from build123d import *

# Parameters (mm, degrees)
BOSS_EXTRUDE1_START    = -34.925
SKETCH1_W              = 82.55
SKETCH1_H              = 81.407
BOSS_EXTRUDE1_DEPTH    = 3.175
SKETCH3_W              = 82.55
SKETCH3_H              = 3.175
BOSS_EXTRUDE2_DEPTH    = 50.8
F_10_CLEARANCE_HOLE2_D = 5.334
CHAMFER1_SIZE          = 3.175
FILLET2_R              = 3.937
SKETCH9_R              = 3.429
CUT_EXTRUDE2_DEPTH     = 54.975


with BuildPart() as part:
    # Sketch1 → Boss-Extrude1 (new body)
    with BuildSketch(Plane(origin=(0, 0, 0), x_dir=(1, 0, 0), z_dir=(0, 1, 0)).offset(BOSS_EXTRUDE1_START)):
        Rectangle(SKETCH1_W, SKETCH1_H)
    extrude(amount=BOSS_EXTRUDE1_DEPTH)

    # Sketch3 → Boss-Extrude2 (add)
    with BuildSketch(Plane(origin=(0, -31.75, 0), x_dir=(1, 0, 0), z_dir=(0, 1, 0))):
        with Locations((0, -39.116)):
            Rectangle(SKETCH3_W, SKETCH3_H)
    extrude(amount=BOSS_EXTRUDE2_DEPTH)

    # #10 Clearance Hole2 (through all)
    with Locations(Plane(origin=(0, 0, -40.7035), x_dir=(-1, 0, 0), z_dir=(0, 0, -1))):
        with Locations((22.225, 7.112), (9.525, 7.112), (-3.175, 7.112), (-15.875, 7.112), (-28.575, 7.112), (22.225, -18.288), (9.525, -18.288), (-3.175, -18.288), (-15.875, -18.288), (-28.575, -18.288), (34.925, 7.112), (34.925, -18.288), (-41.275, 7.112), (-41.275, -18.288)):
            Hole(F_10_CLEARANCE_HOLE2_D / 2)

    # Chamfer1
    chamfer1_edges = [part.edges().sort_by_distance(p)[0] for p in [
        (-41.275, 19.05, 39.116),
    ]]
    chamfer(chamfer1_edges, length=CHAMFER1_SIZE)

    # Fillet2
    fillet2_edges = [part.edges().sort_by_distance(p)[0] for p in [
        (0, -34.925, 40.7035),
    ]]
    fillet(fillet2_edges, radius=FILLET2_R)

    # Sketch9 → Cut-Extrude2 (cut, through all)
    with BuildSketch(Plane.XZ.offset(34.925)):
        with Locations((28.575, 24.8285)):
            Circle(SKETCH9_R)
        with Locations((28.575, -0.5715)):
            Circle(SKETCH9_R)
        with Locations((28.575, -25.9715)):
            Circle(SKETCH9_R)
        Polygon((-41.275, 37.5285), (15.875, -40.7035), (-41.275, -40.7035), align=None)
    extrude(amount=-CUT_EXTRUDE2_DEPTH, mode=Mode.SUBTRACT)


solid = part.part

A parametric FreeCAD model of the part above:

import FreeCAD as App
import Part
import Sketcher
Q = App.Units.Quantity


def edges_at(feature, points):
    """Names of the edges that pass closest to the given points."""
    edges = feature.Shape.Edges
    near = lambda p: min(range(len(edges)), key=lambda i: edges[i].distToShape(Part.Vertex(*p))[0])
    return sorted({f"Edge{near(p) + 1}" for p in points})


def add_polygon(sketch, points):
    """Adds a closed chain of lines whose ends are joined by coincident constraints."""
    first, n = sketch.GeometryCount, len(points)
    for a, b in zip(points, points[1:] + points[:1]):
        sketch.addGeometry(Part.LineSegment(App.Vector(*a, 0), App.Vector(*b, 0)), False)
    for i in range(n):
        sketch.addConstraint(Sketcher.Constraint("Coincident", first + i, 2, first + (i + 1) % n, 1))

doc = App.newDocument("Part")
params = doc.addObject("Spreadsheet::Sheet", "Params")
for row, (alias, value) in enumerate([
    ("sketch1_width", "3.25 in"),
    ("sketch1_height", "3.205 in"),
    ("pad1_length", "0.125 in"),
    ("sketch2_width", "3.25 in"),
    ("sketch2_height", "0.125 in"),
    ("pad2_length", "2 in"),
    ("sketch3_diameter", "0.21 in"),
    ("hole_diameter", "0.21 in"),
    ("chamfer_size", "0.125 in"),
    ("fillet_radius", "0.155 in"),
    ("sketch4_diameter", "0.27 in"),
    ("sketch4_width", "2.25 in"),
    ("sketch4_height", "3.08 in"),
], start=1):
    params.set(f"A{row}", alias)
    params.set(f"B{row}", "=" + value)
    params.setAlias(f"B{row}", alias)

body = doc.addObject("PartDesign::Body", "Body")

sketch1 = doc.addObject("Sketcher::SketchObject", "Sketch")
body.addObject(sketch1)
sketch1.AttachmentSupport = (doc.XZ_Plane, [""])
sketch1.MapMode = "FlatFace"
sketch1.AttachmentOffset = App.Placement(App.Vector(0, 0, 1.375 * 25.4), App.Rotation())
add_polygon(sketch1, [(-41, -41), (-41, 41), (41, 41), (41, -41)])
sketch1.addConstraint(Sketcher.Constraint("Vertical", 0))
sketch1.addConstraint(Sketcher.Constraint("Horizontal", 1))
sketch1.addConstraint(Sketcher.Constraint("Vertical", 2))
sketch1.addConstraint(Sketcher.Constraint("Horizontal", 3))
sketch1.addConstraint(Sketcher.Constraint("Symmetric", 0, 2, 2, 2, -1, 1))
sketch1.addConstraint(Sketcher.Constraint("DistanceX", 1, 1, 1, 2, Q("3.25 in")))
sketch1.addConstraint(Sketcher.Constraint("DistanceY", 0, 1, 0, 2, Q("3.205 in")))
sketch1.setExpression("Constraints[9]", "Params.sketch1_width")
sketch1.setExpression("Constraints[10]", "Params.sketch1_height")
pad1 = doc.addObject("PartDesign::Pad", "Pad")
body.addObject(pad1)
pad1.Profile = sketch1
pad1.setExpression("Length", "Params.pad1_length")
pad1.Reversed = True

sketch2 = doc.addObject("Sketcher::SketchObject", "Sketch001")
body.addObject(sketch2)
sketch2.AttachmentSupport = (doc.XZ_Plane, [""])
sketch2.MapMode = "FlatFace"
sketch2.AttachmentOffset = App.Placement(App.Vector(0, 0, 1.25 * 25.4), App.Rotation())
add_polygon(sketch2, [(-41.3, 37.5), (-41.3, 40.7), (41.3, 40.7), (41.3, 37.5)])
sketch2.addConstraint(Sketcher.Constraint("Vertical", 0))
sketch2.addConstraint(Sketcher.Constraint("Horizontal", 1))
sketch2.addConstraint(Sketcher.Constraint("Vertical", 2))
sketch2.addConstraint(Sketcher.Constraint("Horizontal", 3))
sketch2.addConstraint(Sketcher.Constraint("DistanceX", 1, 1, 1, 2, Q("3.25 in")))
sketch2.addConstraint(Sketcher.Constraint("DistanceY", 0, 1, 0, 2, Q("0.125 in")))
sketch2.addConstraint(Sketcher.Constraint("DistanceX", 0, 2, -1, 1, Q("1.625 in")))
sketch2.addConstraint(Sketcher.Constraint("DistanceY", -1, 1, 0, 2, Q("1.6025 in")))
sketch2.setExpression("Constraints[8]", "Params.sketch2_width")
sketch2.setExpression("Constraints[9]", "Params.sketch2_height")
pad2 = doc.addObject("PartDesign::Pad", "Pad001")
body.addObject(pad2)
pad2.Profile = sketch2
pad2.setExpression("Length", "Params.pad2_length")
pad2.Reversed = True

sketch3 = doc.addObject("Sketcher::SketchObject", "Sketch002")
body.addObject(sketch3)
sketch3.AttachmentSupport = (doc.XY_Plane, [""])
sketch3.MapMode = "FlatFace"
sketch3.AttachmentOffset = App.Placement(App.Vector(0, 0, -1.6025 * 25.4), App.Rotation())
sketch3.addGeometry(Part.Circle(App.Vector(-22.2, 7.1, 0), App.Vector(0, 0, 1), 2.7), False)
sketch3.addGeometry(Part.Circle(App.Vector(-9.5, 7.1, 0), App.Vector(0, 0, 1), 2.7), False)
sketch3.addGeometry(Part.Circle(App.Vector(3.2, 7.1, 0), App.Vector(0, 0, 1), 2.7), False)
sketch3.addGeometry(Part.Circle(App.Vector(15.9, 7.1, 0), App.Vector(0, 0, 1), 2.7), False)
sketch3.addGeometry(Part.Circle(App.Vector(28.6, 7.1, 0), App.Vector(0, 0, 1), 2.7), False)
sketch3.addGeometry(Part.Circle(App.Vector(-22.2, -18.3, 0), App.Vector(0, 0, 1), 2.7), False)
sketch3.addGeometry(Part.Circle(App.Vector(-9.5, -18.3, 0), App.Vector(0, 0, 1), 2.7), False)
sketch3.addGeometry(Part.Circle(App.Vector(3.2, -18.3, 0), App.Vector(0, 0, 1), 2.7), False)
sketch3.addGeometry(Part.Circle(App.Vector(15.9, -18.3, 0), App.Vector(0, 0, 1), 2.7), False)
sketch3.addGeometry(Part.Circle(App.Vector(28.6, -18.3, 0), App.Vector(0, 0, 1), 2.7), False)
sketch3.addGeometry(Part.Circle(App.Vector(-34.9, 7.1, 0), App.Vector(0, 0, 1), 2.7), False)
sketch3.addGeometry(Part.Circle(App.Vector(-34.9, -18.3, 0), App.Vector(0, 0, 1), 2.7), False)
sketch3.addGeometry(Part.Circle(App.Vector(41.3, 7.1, 0), App.Vector(0, 0, 1), 2.7), False)
sketch3.addGeometry(Part.Circle(App.Vector(41.3, -18.3, 0), App.Vector(0, 0, 1), 2.7), False)
sketch3.addConstraint(Sketcher.Constraint("Equal", 0, 1))
sketch3.addConstraint(Sketcher.Constraint("Equal", 1, 2))
sketch3.addConstraint(Sketcher.Constraint("Equal", 2, 3))
sketch3.addConstraint(Sketcher.Constraint("Equal", 3, 4))
sketch3.addConstraint(Sketcher.Constraint("Equal", 4, 5))
sketch3.addConstraint(Sketcher.Constraint("Equal", 5, 6))
sketch3.addConstraint(Sketcher.Constraint("Equal", 6, 7))
sketch3.addConstraint(Sketcher.Constraint("Equal", 7, 8))
sketch3.addConstraint(Sketcher.Constraint("Equal", 8, 9))
sketch3.addConstraint(Sketcher.Constraint("Equal", 9, 10))
sketch3.addConstraint(Sketcher.Constraint("Equal", 10, 11))
sketch3.addConstraint(Sketcher.Constraint("Equal", 11, 12))
sketch3.addConstraint(Sketcher.Constraint("Equal", 12, 13))
sketch3.addConstraint(Sketcher.Constraint("Horizontal", 0, 3, 1, 3))
sketch3.addConstraint(Sketcher.Constraint("Horizontal", 1, 3, 2, 3))
sketch3.addConstraint(Sketcher.Constraint("Horizontal", 2, 3, 3, 3))
sketch3.addConstraint(Sketcher.Constraint("Horizontal", 3, 3, 4, 3))
sketch3.addConstraint(Sketcher.Constraint("Horizontal", 5, 3, 6, 3))
sketch3.addConstraint(Sketcher.Constraint("Horizontal", 6, 3, 7, 3))
sketch3.addConstraint(Sketcher.Constraint("Horizontal", 7, 3, 8, 3))
sketch3.addConstraint(Sketcher.Constraint("Horizontal", 8, 3, 9, 3))
sketch3.addConstraint(Sketcher.Constraint("Horizontal", 4, 3, 10, 3))
sketch3.addConstraint(Sketcher.Constraint("Horizontal", 9, 3, 11, 3))
sketch3.addConstraint(Sketcher.Constraint("Horizontal", 10, 3, 12, 3))
sketch3.addConstraint(Sketcher.Constraint("Horizontal", 11, 3, 13, 3))
sketch3.addConstraint(Sketcher.Constraint("Vertical", 0, 3, 5, 3))
sketch3.addConstraint(Sketcher.Constraint("Vertical", 1, 3, 6, 3))
sketch3.addConstraint(Sketcher.Constraint("Vertical", 2, 3, 7, 3))
sketch3.addConstraint(Sketcher.Constraint("Vertical", 3, 3, 8, 3))
sketch3.addConstraint(Sketcher.Constraint("Vertical", 4, 3, 9, 3))
sketch3.addConstraint(Sketcher.Constraint("Vertical", 10, 3, 11, 3))
sketch3.addConstraint(Sketcher.Constraint("Vertical", 12, 3, 13, 3))
sketch3.addConstraint(Sketcher.Constraint("Diameter", 0, Q("0.21 in")))
sketch3.addConstraint(Sketcher.Constraint("DistanceX", 0, 3, 2, 3, Q("1 in")))
sketch3.addConstraint(Sketcher.Constraint("DistanceX", 1, 3, 3, 3, Q("1 in")))
sketch3.addConstraint(Sketcher.Constraint("DistanceX", 2, 3, 4, 3, Q("1 in")))
sketch3.addConstraint(Sketcher.Constraint("DistanceY", 5, 3, 0, 3, Q("1 in")))
sketch3.addConstraint(Sketcher.Constraint("DistanceX", 10, 3, 1, 3, Q("1 in")))
sketch3.addConstraint(Sketcher.Constraint("DistanceX", 3, 3, 12, 3, Q("1 in")))
sketch3.addConstraint(Sketcher.Constraint("DistanceX", 0, 3, 1, 3, Q("0.5 in")))
sketch3.addConstraint(Sketcher.Constraint("DistanceY", -1, 1, 0, 3, Q("0.28 in")))
sketch3.addConstraint(Sketcher.Constraint("DistanceX", 0, 3, -1, 1, Q("0.875 in")))
sketch3.setExpression("Constraints[32]", "Params.sketch3_diameter")
doc.recompute()
hole = doc.addObject("PartDesign::Hole", "Hole")
body.addObject(hole)
hole.Profile = sketch3
hole.ThreadType = "None"
hole.setExpression("Diameter", "Params.hole_diameter")
hole.DepthType = "ThroughAll"
hole.Reversed = True
doc.recompute()

chamfer = doc.addObject("PartDesign::Chamfer", "Chamfer")
body.addObject(chamfer)
chamfer.Base = (hole, edges_at(hole, [(-41.275, 19.05, 39.116)]))
chamfer.setExpression("Size", "Params.chamfer_size")
doc.recompute()

fillet = doc.addObject("PartDesign::Fillet", "Fillet")
body.addObject(fillet)
fillet.Base = (chamfer, edges_at(chamfer, [(0, -34.925, 40.703)]))
fillet.setExpression("Radius", "Params.fillet_radius")

sketch4 = doc.addObject("Sketcher::SketchObject", "Sketch003")
body.addObject(sketch4)
sketch4.AttachmentSupport = (doc.XZ_Plane, [""])
sketch4.MapMode = "FlatFace"
sketch4.AttachmentOffset = App.Placement(App.Vector(0, 0, 1.375 * 25.4), App.Rotation())
sketch4.addGeometry(Part.Circle(App.Vector(28.6, 24.8, 0), App.Vector(0, 0, 1), 3.4), False)
sketch4.addGeometry(Part.Circle(App.Vector(28.6, -0.6, 0), App.Vector(0, 0, 1), 3.4), False)
sketch4.addGeometry(Part.Circle(App.Vector(28.6, -26, 0), App.Vector(0, 0, 1), 3.4), False)
add_polygon(sketch4, [(15.9, -40.7), (-41.3, 37.5), (-41.3, -40.7)])
sketch4.addConstraint(Sketcher.Constraint("Vertical", 4))
sketch4.addConstraint(Sketcher.Constraint("Horizontal", 5))
sketch4.addConstraint(Sketcher.Constraint("Equal", 0, 1))
sketch4.addConstraint(Sketcher.Constraint("Equal", 1, 2))
sketch4.addConstraint(Sketcher.Constraint("Vertical", 0, 3, 1, 3))
sketch4.addConstraint(Sketcher.Constraint("Vertical", 1, 3, 2, 3))
sketch4.addConstraint(Sketcher.Constraint("Diameter", 0, Q("0.27 in")))
sketch4.addConstraint(Sketcher.Constraint("DistanceY", 1, 3, 0, 3, Q("1 in")))
sketch4.addConstraint(Sketcher.Constraint("DistanceY", 2, 3, 1, 3, Q("1 in")))
sketch4.addConstraint(Sketcher.Constraint("DistanceX", 5, 1, 5, 2, Q("2.25 in")))
sketch4.addConstraint(Sketcher.Constraint("DistanceY", 4, 2, 4, 1, Q("3.08 in")))
sketch4.addConstraint(Sketcher.Constraint("DistanceY", 0, 3, 3, 2, Q("0.5 in")))
sketch4.addConstraint(Sketcher.Constraint("DistanceX", 5, 2, 2, 3, Q("0.5 in")))
sketch4.addConstraint(Sketcher.Constraint("DistanceX", -1, 1, 0, 3, Q("1.125 in")))
sketch4.addConstraint(Sketcher.Constraint("DistanceY", -1, 1, 0, 3, Q("0.9775 in")))
sketch4.setExpression("Constraints[9]", "Params.sketch4_diameter")
sketch4.setExpression("Constraints[12]", "Params.sketch4_width")
sketch4.setExpression("Constraints[13]", "Params.sketch4_height")
pocket1 = doc.addObject("PartDesign::Pocket", "Pocket")
body.addObject(pocket1)
pocket1.Profile = sketch4
pocket1.Type = "ThroughAll"

doc.recompute()
